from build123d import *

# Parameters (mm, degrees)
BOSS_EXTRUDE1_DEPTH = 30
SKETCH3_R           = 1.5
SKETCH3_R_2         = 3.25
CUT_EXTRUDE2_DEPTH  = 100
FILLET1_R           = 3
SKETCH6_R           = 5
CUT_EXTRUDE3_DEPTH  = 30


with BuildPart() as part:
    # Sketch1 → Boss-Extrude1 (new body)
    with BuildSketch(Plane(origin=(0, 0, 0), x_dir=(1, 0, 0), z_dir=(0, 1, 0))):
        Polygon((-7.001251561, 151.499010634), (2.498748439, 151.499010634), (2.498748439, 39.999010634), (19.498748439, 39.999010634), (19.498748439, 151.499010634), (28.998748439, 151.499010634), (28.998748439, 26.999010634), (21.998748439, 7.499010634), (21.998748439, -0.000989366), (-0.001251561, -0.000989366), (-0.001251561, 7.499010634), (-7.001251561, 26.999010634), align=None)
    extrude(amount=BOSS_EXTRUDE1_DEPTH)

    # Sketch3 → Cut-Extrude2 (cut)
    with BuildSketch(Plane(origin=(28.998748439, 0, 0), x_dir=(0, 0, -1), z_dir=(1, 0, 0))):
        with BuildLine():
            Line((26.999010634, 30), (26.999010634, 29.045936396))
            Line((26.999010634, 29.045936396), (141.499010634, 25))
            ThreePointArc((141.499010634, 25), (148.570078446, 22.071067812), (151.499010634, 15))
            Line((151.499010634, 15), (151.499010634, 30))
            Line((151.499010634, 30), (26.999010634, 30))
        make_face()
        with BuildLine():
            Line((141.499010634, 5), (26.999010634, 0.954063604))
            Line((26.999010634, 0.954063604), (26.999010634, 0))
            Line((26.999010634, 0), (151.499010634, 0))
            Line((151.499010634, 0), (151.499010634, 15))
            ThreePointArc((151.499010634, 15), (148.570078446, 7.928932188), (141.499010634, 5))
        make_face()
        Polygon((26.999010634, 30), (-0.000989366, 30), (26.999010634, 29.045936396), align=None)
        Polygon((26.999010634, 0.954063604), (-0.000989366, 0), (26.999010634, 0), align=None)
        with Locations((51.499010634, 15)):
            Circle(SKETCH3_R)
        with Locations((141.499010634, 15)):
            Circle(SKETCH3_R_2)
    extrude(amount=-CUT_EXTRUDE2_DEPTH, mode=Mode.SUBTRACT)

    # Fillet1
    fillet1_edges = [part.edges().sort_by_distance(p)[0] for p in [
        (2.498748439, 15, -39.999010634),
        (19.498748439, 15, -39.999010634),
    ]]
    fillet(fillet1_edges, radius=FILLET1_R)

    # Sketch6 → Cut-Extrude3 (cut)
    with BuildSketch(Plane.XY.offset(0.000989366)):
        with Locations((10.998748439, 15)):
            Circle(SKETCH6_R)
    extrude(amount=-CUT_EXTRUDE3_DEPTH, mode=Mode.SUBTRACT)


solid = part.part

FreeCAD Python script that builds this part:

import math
import FreeCAD as App
import Part
import Sketcher

V = App.Vector


def edges_at(feature, points):
    """Names of the edges that pass closest to the given points."""
    edges = feature.Shape.Edges
    near = lambda p: min(range(len(edges)), key=lambda i: edges[i].distToShape(Part.Vertex(*p))[0])
    return sorted({f"Edge{near(p) + 1}" for p in points})


def add_polygon(sketch, points):
    """Adds a closed chain of lines whose ends are joined by coincident constraints."""
    first, n = sketch.GeometryCount, len(points)
    for a, b in zip(points, points[1:] + points[:1]):
        sketch.addGeometry(Part.LineSegment(App.Vector(*a, 0), App.Vector(*b, 0)), False)
    for i in range(n):
        sketch.addConstraint(Sketcher.Constraint("Coincident", first + i, 2, first + (i + 1) % n, 1))

doc = App.newDocument("Part")
body = doc.addObject("PartDesign::Body", "Body")

sketch1 = doc.addObject("Sketcher::SketchObject", "Sketch")
body.addObject(sketch1)
sketch1.AttachmentSupport = (doc.XZ_Plane, [""])
sketch1.MapMode = "FlatFace"
add_polygon(sketch1, [(2.498748, -151.499011), (-7.001252, -151.499011), (-7.001252, -26.999011), (-0.001252, -7.499011), (-0.001252, 0.000989), (21.998748, 0.000989), (21.998748, -7.499011), (28.998748, -26.999011), (28.998748, -151.499011), (19.498748, -151.499011), (19.498748, -39.999011), (2.498748, -39.999011)])
sketch1.addConstraint([
    Sketcher.Constraint("Horizontal", 0),
    Sketcher.Constraint("Vertical", 1),
    Sketcher.Constraint("Vertical", 3),
    Sketcher.Constraint("Horizontal", 4),
    Sketcher.Constraint("Vertical", 5),
    Sketcher.Constraint("Vertical", 7),
    Sketcher.Constraint("Horizontal", 8),
    Sketcher.Constraint("Vertical", 9),
    Sketcher.Constraint("Horizontal", 10),
    Sketcher.Constraint("Vertical", 11),
    Sketcher.Constraint("Horizontal", 2, 2, 5, 2),
    Sketcher.Constraint("Horizontal", 1, 2, 6, 2),
    Sketcher.Constraint("Horizontal", 0, 2, 7, 2),
    Sketcher.Constraint("Equal", 0, 8),
    Sketcher.Constraint("Equal", 2, 6),
    Sketcher.Constraint("DistanceX", 4, 1, 4, 2, 22.0),
    Sketcher.Constraint("DistanceX", 10, 2, 10, 1, 17.0),
    Sketcher.Constraint("DistanceX", 0, 2, 0, 1, 9.5),
    Sketcher.Constraint("DistanceY", 1, 1, 1, 2, 124.5),
    Sketcher.Constraint("DistanceY", 3, 1, 3, 2, 7.5),
    Sketcher.Constraint("DistanceY", 9, 1, 9, 2, 111.5),
    Sketcher.Constraint("DistanceY", 0, 2, 2, 2, 144.0),
    Sketcher.Constraint("DistanceX", 0, 2, -1, 1, 7.001252),
    Sketcher.Constraint("DistanceY", 0, 2, -1, 1, 151.499011),
])
pad1 = doc.addObject("PartDesign::Pad", "Pad")
body.addObject(pad1)
pad1.Profile = sketch1
pad1.Length = 30
pad1.Reversed = True

sketch2 = doc.addObject("Sketcher::SketchObject", "Sketch001")
body.addObject(sketch2)
sketch2.AttachmentSupport = (doc.YZ_Plane, [""])
sketch2.MapMode = "FlatFace"
sketch2.AttachmentOffset = App.Placement(V(0, 0, 28.998748), App.Rotation())
sketch2.addGeometry([
    Part.LineSegment(V(29.045936, -26.999011, 0), V(25, -141.499011, 0)),
    Part.ArcOfCircle(Part.Circle(V(15, -141.499011, 0), V(0, 0, 1), 10), math.radians(-90), math.radians(0)),
    Part.LineSegment(V(15, -151.499011, 0), V(30, -151.499011, 0)),
    Part.LineSegment(V(30, -151.499011, 0), V(30, 0.000989, 0)),
    Part.LineSegment(V(30, 0.000989, 0), V(29.045936, -26.999011, 0)),
    Part.LineSegment(V(5, -141.499011, 0), V(0.954064, -26.999011, 0)),
    Part.LineSegment(V(0.954064, -26.999011, 0), V(0, 0.000989, 0)),
    Part.LineSegment(V(0, 0.000989, 0), V(0, -151.499011, 0)),
    Part.LineSegment(V(0, -151.499011, 0), V(15, -151.499011, 0)),
    Part.ArcOfCircle(Part.Circle(V(15, -141.499011, 0), V(0, 0, 1), 10), math.radians(180), math.radians(270)),
    Part.Circle(V(15, -51.499011, 0), V(0, 0, 1), 1.5),
    Part.Circle(V(15, -141.499011, 0), V(0, 0, 1), 3.25),
], False)
sketch2.addConstraint([
    Sketcher.Constraint("Coincident", 0, 2, 1, 2),
    Sketcher.Constraint("Tangent", 1, 1, 2, 1),
    Sketcher.Constraint("Coincident", 2, 2, 3, 1),
    Sketcher.Constraint("Coincident", 3, 2, 4, 1),
    Sketcher.Constraint("Coincident", 4, 2, 0, 1),
    Sketcher.Constraint("Coincident", 5, 2, 6, 1),
    Sketcher.Constraint("Coincident", 6, 2, 7, 1),
    Sketcher.Constraint("Coincident", 7, 2, 8, 1),
    Sketcher.Constraint("Tangent", 8, 2, 9, 2),
    Sketcher.Constraint("Coincident", 9, 1, 5, 1),
    Sketcher.Constraint("Horizontal", 2),
    Sketcher.Constraint("Vertical", 3),
    Sketcher.Constraint("Vertical", 7),
    Sketcher.Constraint("Horizontal", 8),
    Sketcher.Constraint("Coincident", 9, 3, 1, 3),
    Sketcher.Constraint("Coincident", 11, 3, 1, 3),
    Sketcher.Constraint("Equal", 1, 9),
    Sketcher.Constraint("PointOnObject", 6, 2, -2),
    Sketcher.Constraint("Parallel", 0, 4),
    Sketcher.Constraint("Parallel", 5, 6),
    Sketcher.Constraint("Horizontal", 11, 3, 0, 2),
    Sketcher.Constraint("Horizontal", 4, 2, 5, 2),
    Sketcher.Constraint("Horizontal", 3, 2, 6, 2),
    Sketcher.Constraint("Horizontal", 0, 2, 9, 1),
    Sketcher.Constraint("Vertical", 9, 3, 10, 3),
    Sketcher.Constraint("Equal", 2, 8),
    Sketcher.Constraint("Diameter", 10, 3.0),
    Sketcher.Constraint("Radius", 1, 10.0),
    Sketcher.Constraint("Diameter", 11, 6.5),
    Sketcher.Constraint("DistanceX", 2, 1, 2, 2, 15.0),
    Sketcher.Constraint("DistanceY", 3, 1, 3, 2, 151.5),
    Sketcher.Constraint("DistanceY", 1, 3, 10, 3, 90.0),
    Sketcher.Constraint("DistanceY", 4, 2, 3, 2, 27.0),
    Sketcher.Constraint("DistanceY", 1, 3, -1, 1, 141.499011),
])
pocket1 = doc.addObject("PartDesign::Pocket", "Pocket")
body.addObject(pocket1)
pocket1.Profile = sketch2
pocket1.Length = 100
doc.recompute()

fillet = doc.addObject("PartDesign::Fillet", "Fillet")
body.addObject(fillet)
fillet.Base = (pocket1, edges_at(pocket1, [(2.499, 15, -39.999), (19.499, 15, -39.999)]))
fillet.Radius = 3

sketch3 = doc.addObject("Sketcher::SketchObject", "Sketch002")
body.addObject(sketch3)
sketch3.AttachmentSupport = (doc.XY_Plane, [""])
sketch3.MapMode = "FlatFace"
sketch3.AttachmentOffset = App.Placement(V(0, 0, 0.000989), App.Rotation())
sketch3.addGeometry(Part.Circle(V(10.998748, 15, 0), V(0, 0, 1), 5), False)
sketch3.addConstraint([
    Sketcher.Constraint("Diameter", 0, 10.0),
    Sketcher.Constraint("DistanceY", -1, 1, 0, 3, 15.0),
    Sketcher.Constraint("DistanceX", -1, 1, 0, 3, 10.998748),
])
pocket2 = doc.addObject("PartDesign::Pocket", "Pocket001")
body.addObject(pocket2)
pocket2.Profile = sketch3
pocket2.Length = 30

doc.recompute()
